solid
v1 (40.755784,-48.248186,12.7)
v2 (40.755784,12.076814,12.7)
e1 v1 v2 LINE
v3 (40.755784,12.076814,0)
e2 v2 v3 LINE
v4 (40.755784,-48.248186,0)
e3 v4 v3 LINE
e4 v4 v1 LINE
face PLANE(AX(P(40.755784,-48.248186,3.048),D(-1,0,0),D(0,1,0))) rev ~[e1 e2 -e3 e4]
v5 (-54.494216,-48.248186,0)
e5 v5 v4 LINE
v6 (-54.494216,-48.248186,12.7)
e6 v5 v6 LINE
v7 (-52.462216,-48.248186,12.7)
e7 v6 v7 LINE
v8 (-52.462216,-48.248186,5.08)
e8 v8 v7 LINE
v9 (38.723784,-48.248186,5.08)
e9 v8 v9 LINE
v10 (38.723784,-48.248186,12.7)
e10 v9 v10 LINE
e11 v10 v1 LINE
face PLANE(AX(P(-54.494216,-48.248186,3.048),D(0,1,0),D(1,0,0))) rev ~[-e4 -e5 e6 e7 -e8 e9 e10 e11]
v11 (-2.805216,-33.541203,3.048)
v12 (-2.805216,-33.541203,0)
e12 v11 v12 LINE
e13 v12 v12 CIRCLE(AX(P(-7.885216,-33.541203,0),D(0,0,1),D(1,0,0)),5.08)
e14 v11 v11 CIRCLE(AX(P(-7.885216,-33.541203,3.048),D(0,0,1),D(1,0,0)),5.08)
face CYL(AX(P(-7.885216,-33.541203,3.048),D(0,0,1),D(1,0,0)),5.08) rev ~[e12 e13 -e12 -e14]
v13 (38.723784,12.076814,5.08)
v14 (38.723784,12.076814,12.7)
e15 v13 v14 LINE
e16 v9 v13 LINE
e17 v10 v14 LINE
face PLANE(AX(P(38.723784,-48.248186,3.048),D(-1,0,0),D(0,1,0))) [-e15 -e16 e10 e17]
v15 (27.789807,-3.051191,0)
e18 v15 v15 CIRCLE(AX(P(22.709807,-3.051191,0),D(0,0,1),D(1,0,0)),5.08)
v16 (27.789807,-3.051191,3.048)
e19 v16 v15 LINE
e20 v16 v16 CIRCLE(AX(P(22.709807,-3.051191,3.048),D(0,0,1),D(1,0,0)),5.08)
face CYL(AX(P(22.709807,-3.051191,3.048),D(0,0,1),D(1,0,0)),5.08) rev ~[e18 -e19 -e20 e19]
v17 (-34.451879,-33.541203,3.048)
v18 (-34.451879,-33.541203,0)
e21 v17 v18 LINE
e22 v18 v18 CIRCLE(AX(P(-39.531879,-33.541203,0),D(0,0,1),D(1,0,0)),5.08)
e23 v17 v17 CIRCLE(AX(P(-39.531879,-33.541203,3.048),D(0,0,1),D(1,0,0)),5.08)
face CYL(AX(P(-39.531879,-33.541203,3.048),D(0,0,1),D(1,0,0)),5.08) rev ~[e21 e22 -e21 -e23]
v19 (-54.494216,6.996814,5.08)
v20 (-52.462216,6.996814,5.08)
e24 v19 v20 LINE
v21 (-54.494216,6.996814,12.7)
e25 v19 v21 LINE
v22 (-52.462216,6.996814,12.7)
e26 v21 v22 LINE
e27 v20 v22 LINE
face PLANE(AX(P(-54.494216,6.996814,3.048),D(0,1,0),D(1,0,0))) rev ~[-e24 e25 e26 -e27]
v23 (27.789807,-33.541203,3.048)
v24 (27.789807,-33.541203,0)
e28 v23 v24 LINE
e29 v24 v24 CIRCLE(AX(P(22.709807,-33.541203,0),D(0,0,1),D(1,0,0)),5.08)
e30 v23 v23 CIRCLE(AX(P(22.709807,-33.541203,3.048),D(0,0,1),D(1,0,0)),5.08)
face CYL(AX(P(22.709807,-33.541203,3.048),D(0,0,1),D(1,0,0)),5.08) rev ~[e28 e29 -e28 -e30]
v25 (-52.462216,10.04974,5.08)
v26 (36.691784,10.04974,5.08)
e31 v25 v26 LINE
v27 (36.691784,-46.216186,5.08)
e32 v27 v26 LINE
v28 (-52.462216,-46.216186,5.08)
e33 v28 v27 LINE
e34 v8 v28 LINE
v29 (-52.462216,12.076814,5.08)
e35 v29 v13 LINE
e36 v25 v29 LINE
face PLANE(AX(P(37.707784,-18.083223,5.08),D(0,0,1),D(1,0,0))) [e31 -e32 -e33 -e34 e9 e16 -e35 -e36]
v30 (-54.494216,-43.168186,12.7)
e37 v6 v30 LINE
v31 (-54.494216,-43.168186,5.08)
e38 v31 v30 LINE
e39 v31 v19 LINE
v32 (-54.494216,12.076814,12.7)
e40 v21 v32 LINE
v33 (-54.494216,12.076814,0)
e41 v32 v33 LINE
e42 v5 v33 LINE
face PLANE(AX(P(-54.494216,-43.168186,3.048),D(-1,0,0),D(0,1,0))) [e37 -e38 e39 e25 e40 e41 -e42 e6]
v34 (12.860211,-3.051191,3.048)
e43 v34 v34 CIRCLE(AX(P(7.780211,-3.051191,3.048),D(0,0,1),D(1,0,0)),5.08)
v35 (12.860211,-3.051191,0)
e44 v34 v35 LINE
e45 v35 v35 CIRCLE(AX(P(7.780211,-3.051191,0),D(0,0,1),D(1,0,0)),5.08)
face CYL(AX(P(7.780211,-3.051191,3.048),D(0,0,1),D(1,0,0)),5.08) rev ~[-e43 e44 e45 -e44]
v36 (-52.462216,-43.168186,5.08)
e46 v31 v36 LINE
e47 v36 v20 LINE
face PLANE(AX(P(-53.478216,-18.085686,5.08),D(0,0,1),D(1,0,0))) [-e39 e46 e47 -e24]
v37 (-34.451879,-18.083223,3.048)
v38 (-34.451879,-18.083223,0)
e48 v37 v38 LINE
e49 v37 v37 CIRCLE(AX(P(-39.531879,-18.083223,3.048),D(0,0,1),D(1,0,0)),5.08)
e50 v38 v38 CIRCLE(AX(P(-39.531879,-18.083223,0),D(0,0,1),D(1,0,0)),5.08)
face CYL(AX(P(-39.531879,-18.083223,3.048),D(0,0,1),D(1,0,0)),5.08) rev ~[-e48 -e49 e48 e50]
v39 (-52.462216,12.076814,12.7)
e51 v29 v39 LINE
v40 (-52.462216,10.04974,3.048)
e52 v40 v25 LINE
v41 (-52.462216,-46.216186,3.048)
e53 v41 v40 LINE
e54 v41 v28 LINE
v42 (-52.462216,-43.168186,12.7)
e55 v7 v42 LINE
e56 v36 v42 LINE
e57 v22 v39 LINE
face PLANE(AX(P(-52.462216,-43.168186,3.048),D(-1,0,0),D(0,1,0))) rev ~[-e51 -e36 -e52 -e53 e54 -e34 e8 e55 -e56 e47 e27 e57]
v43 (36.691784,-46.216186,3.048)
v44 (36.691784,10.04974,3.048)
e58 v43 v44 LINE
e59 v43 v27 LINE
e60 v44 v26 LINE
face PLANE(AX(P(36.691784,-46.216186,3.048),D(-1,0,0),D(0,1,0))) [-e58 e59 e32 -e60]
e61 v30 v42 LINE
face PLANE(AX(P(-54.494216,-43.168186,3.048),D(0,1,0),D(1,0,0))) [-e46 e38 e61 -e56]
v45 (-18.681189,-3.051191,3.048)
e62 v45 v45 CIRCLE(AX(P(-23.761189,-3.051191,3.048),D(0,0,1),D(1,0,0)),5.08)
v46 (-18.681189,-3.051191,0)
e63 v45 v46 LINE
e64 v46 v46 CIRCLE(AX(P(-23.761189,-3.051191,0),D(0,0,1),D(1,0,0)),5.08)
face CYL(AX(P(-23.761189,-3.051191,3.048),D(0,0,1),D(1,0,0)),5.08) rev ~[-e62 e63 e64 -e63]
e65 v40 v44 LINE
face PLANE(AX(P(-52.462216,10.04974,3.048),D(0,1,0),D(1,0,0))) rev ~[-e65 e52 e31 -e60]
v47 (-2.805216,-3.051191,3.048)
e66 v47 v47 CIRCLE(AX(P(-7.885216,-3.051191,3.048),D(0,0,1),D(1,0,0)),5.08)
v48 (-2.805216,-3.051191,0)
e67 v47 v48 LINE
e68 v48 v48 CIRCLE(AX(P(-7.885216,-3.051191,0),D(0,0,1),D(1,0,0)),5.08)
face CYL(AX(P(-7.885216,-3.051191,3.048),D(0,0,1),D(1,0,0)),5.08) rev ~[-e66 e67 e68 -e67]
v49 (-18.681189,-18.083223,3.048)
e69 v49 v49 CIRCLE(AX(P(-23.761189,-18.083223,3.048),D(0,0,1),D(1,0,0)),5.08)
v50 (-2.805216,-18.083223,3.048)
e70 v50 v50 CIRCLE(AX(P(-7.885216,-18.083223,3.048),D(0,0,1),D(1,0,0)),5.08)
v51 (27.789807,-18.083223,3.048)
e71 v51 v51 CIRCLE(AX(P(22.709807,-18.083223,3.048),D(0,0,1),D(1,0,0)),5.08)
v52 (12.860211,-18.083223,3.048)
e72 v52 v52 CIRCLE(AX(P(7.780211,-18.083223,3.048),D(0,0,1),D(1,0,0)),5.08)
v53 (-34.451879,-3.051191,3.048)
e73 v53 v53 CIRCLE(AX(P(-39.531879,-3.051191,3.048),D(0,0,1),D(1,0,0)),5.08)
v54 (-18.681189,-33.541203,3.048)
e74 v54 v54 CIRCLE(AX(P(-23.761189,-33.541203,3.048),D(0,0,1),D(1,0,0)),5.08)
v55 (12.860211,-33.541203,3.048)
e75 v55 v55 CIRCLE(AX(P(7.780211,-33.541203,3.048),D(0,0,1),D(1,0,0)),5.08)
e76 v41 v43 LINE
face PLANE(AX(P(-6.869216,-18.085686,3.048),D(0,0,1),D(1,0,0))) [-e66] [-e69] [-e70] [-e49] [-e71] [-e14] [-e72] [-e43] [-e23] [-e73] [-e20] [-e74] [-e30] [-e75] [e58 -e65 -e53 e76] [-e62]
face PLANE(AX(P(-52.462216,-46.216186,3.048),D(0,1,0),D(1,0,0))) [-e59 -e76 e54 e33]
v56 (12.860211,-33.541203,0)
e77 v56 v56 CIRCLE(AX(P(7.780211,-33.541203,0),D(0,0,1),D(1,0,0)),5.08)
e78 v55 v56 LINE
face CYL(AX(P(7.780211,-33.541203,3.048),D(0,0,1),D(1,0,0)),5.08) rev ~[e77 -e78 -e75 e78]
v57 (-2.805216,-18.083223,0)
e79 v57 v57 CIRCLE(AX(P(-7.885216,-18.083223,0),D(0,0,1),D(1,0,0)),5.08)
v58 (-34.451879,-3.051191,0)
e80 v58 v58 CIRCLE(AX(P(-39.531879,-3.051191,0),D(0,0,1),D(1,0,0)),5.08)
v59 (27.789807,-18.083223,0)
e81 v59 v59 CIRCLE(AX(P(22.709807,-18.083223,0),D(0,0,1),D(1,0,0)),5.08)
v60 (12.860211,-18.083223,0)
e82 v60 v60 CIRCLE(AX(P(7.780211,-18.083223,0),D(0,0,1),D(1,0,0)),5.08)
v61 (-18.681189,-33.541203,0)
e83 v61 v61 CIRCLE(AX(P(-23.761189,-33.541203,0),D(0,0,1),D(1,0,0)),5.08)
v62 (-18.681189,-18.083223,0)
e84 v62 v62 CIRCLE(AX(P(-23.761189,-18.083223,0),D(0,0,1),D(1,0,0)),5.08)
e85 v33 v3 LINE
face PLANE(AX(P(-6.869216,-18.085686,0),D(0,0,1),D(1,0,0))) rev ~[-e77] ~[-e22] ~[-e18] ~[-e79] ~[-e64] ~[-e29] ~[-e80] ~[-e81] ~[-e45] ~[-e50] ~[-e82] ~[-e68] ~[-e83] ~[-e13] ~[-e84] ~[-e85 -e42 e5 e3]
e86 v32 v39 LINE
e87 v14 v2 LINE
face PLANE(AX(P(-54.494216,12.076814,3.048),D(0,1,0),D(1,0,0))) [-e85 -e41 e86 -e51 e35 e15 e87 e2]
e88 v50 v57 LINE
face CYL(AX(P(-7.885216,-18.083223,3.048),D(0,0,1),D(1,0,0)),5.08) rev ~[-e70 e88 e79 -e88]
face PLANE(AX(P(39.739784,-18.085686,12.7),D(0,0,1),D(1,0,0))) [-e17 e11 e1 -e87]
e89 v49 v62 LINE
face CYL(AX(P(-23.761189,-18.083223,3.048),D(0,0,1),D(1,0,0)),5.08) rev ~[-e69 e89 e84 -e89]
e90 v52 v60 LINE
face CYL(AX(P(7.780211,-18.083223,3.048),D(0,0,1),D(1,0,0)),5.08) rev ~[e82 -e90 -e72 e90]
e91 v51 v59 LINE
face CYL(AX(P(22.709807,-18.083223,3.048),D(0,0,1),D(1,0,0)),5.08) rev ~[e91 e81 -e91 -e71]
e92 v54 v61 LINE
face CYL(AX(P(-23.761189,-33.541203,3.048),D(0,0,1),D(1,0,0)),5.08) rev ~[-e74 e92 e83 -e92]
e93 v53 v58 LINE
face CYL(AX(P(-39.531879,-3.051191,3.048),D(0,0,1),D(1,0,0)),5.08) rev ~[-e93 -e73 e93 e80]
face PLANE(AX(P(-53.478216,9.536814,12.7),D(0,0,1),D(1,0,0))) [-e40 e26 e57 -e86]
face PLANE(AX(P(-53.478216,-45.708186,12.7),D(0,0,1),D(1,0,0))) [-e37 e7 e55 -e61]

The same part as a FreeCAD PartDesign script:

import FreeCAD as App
import Part
import Sketcher

V = App.Vector
Q = App.Units.Quantity


def add_polygon(sketch, points):
    """Adds a closed chain of lines whose ends are joined by coincident constraints."""
    first, n = sketch.GeometryCount, len(points)
    for a, b in zip(points, points[1:] + points[:1]):
        sketch.addGeometry(Part.LineSegment(App.Vector(*a, 0), App.Vector(*b, 0)), False)
    for i in range(n):
        sketch.addConstraint(Sketcher.Constraint("Coincident", first + i, 2, first + (i + 1) % n, 1))

doc = App.newDocument("Part")
params = doc.addObject("Spreadsheet::Sheet", "Params")
for row, (alias, value) in enumerate([
    ("sketch1_width", "3.75 in"),
    ("sketch1_height", "2.375 in"),
    ("pad1_length", "0.12 in"),
    ("sketch2_width", "0.08 in"),
    ("sketch2_height", "2.375 in"),
    ("pad2_length", "0.38 in"),
    ("sketch3_height", "0.2 in"),
    ("sketch3_width", "0.08 in"),
    ("pad3_length", "0.38 in"),
    ("sketch4_height", "0.2 in"),
    ("sketch4_width", "0.08 in"),
    ("pad4_length", "0.38 in"),
    ("sketch5_width", "3.59 in"),
    ("sketch5_height", "0.08 in"),
    ("pad5_length", "0.08 in"),
    ("sketch6_width", "0.08 in"),
    ("sketch6_height", "1.975 in"),
    ("pad6_length", "0.08 in"),
    ("sketch7_width", "0.08 in"),
    ("pad7_length", "0.08 in"),
    ("sketch8_diameter", "0.4 in"),
    ("pocket1_length", "1 in"),
], start=1):
    params.set(f"A{row}", alias)
    params.set(f"B{row}", "=" + value)
    params.setAlias(f"B{row}", alias)

body = doc.addObject("PartDesign::Body", "Body")

sketch1 = body.newObject("Sketcher::SketchObject", "Sketch")
sketch1.AttachmentSupport = (doc.getObject("XY_Plane"), [""])
sketch1.MapMode = "FlatFace"
add_polygon(sketch1, [(-54, 12), (-54, -48), (41, -48), (41, 12)])
sketch1.addConstraint([
    Sketcher.Constraint("Vertical", 0),
    Sketcher.Constraint("Horizontal", 1),
    Sketcher.Constraint("Vertical", 2),
    Sketcher.Constraint("Horizontal", 3),
    Sketcher.Constraint("DistanceX", 1, 1, 1, 2, Q("3.75 in")),
    Sketcher.Constraint("DistanceY", 0, 2, 0, 1, Q("2.375 in")),
    Sketcher.Constraint("DistanceX", 0, 2, -1, 1, Q("54.494216 mm")),
    Sketcher.Constraint("DistanceY", 0, 2, -1, 1, Q("48.248186 mm")),
])
sketch1.setExpression("Constraints[8]", "Params.sketch1_width")
sketch1.setExpression("Constraints[9]", "Params.sketch1_height")
pad1 = body.newObject("PartDesign::Pad", "Pad")
pad1.Profile = sketch1
pad1.setExpression("Length", "Params.pad1_length")

sketch2 = body.newObject("Sketcher::SketchObject", "Sketch001")
sketch2.AttachmentSupport = (doc.getObject("XY_Plane"), [""])
sketch2.MapMode = "FlatFace"
sketch2.AttachmentOffset = App.Placement(V(0, 0, 0.12 * 25.4), App.Rotation())
add_polygon(sketch2, [(38.7, 12.1), (38.7, -48.2), (40.8, -48.2), (40.8, 12.1)])
sketch2.addConstraint([
    Sketcher.Constraint("Vertical", 0),
    Sketcher.Constraint("Horizontal", 1),
    Sketcher.Constraint("Vertical", 2),
    Sketcher.Constraint("Horizontal", 3),
    Sketcher.Constraint("DistanceX", 1, 1, 1, 2, Q("0.08 in")),
    Sketcher.Constraint("DistanceY", 0, 2, 0, 1, Q("2.375 in")),
    Sketcher.Constraint("DistanceX", -1, 1, 0, 2, Q("38.723784 mm")),
    Sketcher.Constraint("DistanceY", 0, 2, -1, 1, Q("48.248186 mm")),
])
sketch2.setExpression("Constraints[8]", "Params.sketch2_width")
sketch2.setExpression("Constraints[9]", "Params.sketch2_height")
pad2 = body.newObject("PartDesign::Pad", "Pad001")
pad2.Profile = sketch2
pad2.setExpression("Length", "Params.pad2_length")

sketch3 = body.newObject("Sketcher::SketchObject", "Sketch002")
sketch3.AttachmentSupport = (doc.getObject("XY_Plane"), [""])
sketch3.MapMode = "FlatFace"
sketch3.AttachmentOffset = App.Placement(V(0, 0, 0.12 * 25.4), App.Rotation())
add_polygon(sketch3, [(-54.5, -43.2), (-54.5, -48.2), (-52.5, -48.2), (-52.5, -43.2)])
sketch3.addConstraint([
    Sketcher.Constraint("Vertical", 0),
    Sketcher.Constraint("Horizontal", 1),
    Sketcher.Constraint("Vertical", 2),
    Sketcher.Constraint("Horizontal", 3),
    Sketcher.Constraint("DistanceY", 0, 2, 0, 1, Q("0.2 in")),
    Sketcher.Constraint("DistanceX", 1, 1, 1, 2, Q("0.08 in")),
    Sketcher.Constraint("DistanceX", 0, 2, -1, 1, Q("54.494216 mm")),
    Sketcher.Constraint("DistanceY", 0, 2, -1, 1, Q("48.248186 mm")),
])
sketch3.setExpression("Constraints[8]", "Params.sketch3_height")
sketch3.setExpression("Constraints[9]", "Params.sketch3_width")
pad3 = body.newObject("PartDesign::Pad", "Pad002")
pad3.Profile = sketch3
pad3.setExpression("Length", "Params.pad3_length")

sketch4 = body.newObject("Sketcher::SketchObject", "Sketch003")
sketch4.AttachmentSupport = (doc.getObject("XY_Plane"), [""])
sketch4.MapMode = "FlatFace"
sketch4.AttachmentOffset = App.Placement(V(0, 0, 0.12 * 25.4), App.Rotation())
add_polygon(sketch4, [(-54.5, 12.1), (-54.5, 7), (-52.5, 7), (-52.5, 12.1)])
sketch4.addConstraint([
    Sketcher.Constraint("Vertical", 0),
    Sketcher.Constraint("Horizontal", 1),
    Sketcher.Constraint("Vertical", 2),
    Sketcher.Constraint("Horizontal", 3),
    Sketcher.Constraint("DistanceY", 0, 2, 0, 1, Q("0.2 in")),
    Sketcher.Constraint("DistanceX", 1, 1, 1, 2, Q("0.08 in")),
    Sketcher.Constraint("DistanceX", 0, 2, -1, 1, Q("54.494216 mm")),
    Sketcher.Constraint("DistanceY", -1, 1, 0, 2, Q("6.996814 mm")),
])
sketch4.setExpression("Constraints[8]", "Params.sketch4_height")
sketch4.setExpression("Constraints[9]", "Params.sketch4_width")
pad4 = body.newObject("PartDesign::Pad", "Pad003")
pad4.Profile = sketch4
pad4.setExpression("Length", "Params.pad4_length")

sketch5 = body.newObject("Sketcher::SketchObject", "Sketch004")
sketch5.AttachmentSupport = (doc.getObject("XY_Plane"), [""])
sketch5.MapMode = "FlatFace"
sketch5.AttachmentOffset = App.Placement(V(0, 0, 0.12 * 25.4), App.Rotation())
add_polygon(sketch5, [(-52.5, 12.1), (-52.5, 10), (38.7, 10), (38.7, 12.1)])
add_polygon(sketch5, [(-52.5, -46.2), (-52.5, -48.2), (38.7, -48.2), (38.7, -46.2)])
sketch5.addConstraint([
    Sketcher.Constraint("Vertical", 0),
    Sketcher.Constraint("Horizontal", 1),
    Sketcher.Constraint("Vertical", 2),
    Sketcher.Constraint("Horizontal", 3),
    Sketcher.Constraint("Vertical", 4),
    Sketcher.Constraint("Horizontal", 5),
    Sketcher.Constraint("Vertical", 6),
    Sketcher.Constraint("Horizontal", 7),
    Sketcher.Constraint("Vertical", 3, 2, 4, 2),
    Sketcher.Constraint("Vertical", 2, 2, 5, 2),
    Sketcher.Constraint("DistanceX", 1, 1, 1, 2, Q("3.59 in")),
    Sketcher.Constraint("DistanceY", 4, 2, 4, 1, Q("0.08 in")),
    Sketcher.Constraint("DistanceY", 4, 2, 3, 2, Q("2.375 in")),
    Sketcher.Constraint("DistanceY", 0, 2, 0, 1, Q("2.027074 mm")),
    Sketcher.Constraint("DistanceY", -1, 1, 0, 2, Q("10.04974 mm")),
    Sketcher.Constraint("DistanceX", 0, 2, -1, 1, Q("52.462216 mm")),
])
sketch5.setExpression("Constraints[18]", "Params.sketch5_width")
sketch5.setExpression("Constraints[19]", "Params.sketch5_height")
pad5 = body.newObject("PartDesign::Pad", "Pad004")
pad5.Profile = sketch5
pad5.setExpression("Length", "Params.pad5_length")

sketch6 = body.newObject("Sketcher::SketchObject", "Sketch005")
sketch6.AttachmentSupport = (doc.getObject("XY_Plane"), [""])
sketch6.MapMode = "FlatFace"
sketch6.AttachmentOffset = App.Placement(V(0, 0, 0.12 * 25.4), App.Rotation())
add_polygon(sketch6, [(-54.5, 7), (-54.5, -43.2), (-52.5, -43.2), (-52.5, 7)])
sketch6.addConstraint([
    Sketcher.Constraint("Vertical", 0),
    Sketcher.Constraint("Horizontal", 1),
    Sketcher.Constraint("Vertical", 2),
    Sketcher.Constraint("Horizontal", 3),
    Sketcher.Constraint("DistanceX", 1, 1, 1, 2, Q("0.08 in")),
    Sketcher.Constraint("DistanceY", 0, 2, 0, 1, Q("1.975 in")),
    Sketcher.Constraint("DistanceX", 0, 2, -1, 1, Q("54.494216 mm")),
    Sketcher.Constraint("DistanceY", 0, 2, -1, 1, Q("43.168186 mm")),
])
sketch6.setExpression("Constraints[8]", "Params.sketch6_width")
sketch6.setExpression("Constraints[9]", "Params.sketch6_height")
pad6 = body.newObject("PartDesign::Pad", "Pad005")
pad6.Profile = sketch6
pad6.setExpression("Length", "Params.pad6_length")

sketch7 = body.newObject("Sketcher::SketchObject", "Sketch006")
sketch7.AttachmentSupport = (doc.getObject("XY_Plane"), [""])
sketch7.MapMode = "FlatFace"
sketch7.AttachmentOffset = App.Placement(V(0, 0, 0.12 * 25.4), App.Rotation())
add_polygon(sketch7, [(36.7, 10), (36.7, -46.2), (38.7, -46.2), (38.7, 10)])
sketch7.addConstraint([
    Sketcher.Constraint("Vertical", 0),
    Sketcher.Constraint("Horizontal", 1),
    Sketcher.Constraint("Vertical", 2),
    Sketcher.Constraint("Horizontal", 3),
    Sketcher.Constraint("DistanceX", 1, 1, 1, 2, Q("0.08 in")),
    Sketcher.Constraint("DistanceY", 0, 2, 0, 1, Q("56.265926 mm")),
    Sketcher.Constraint("DistanceY", -1, 1, 2, 2, Q("10.04974 mm")),
    Sketcher.Constraint("DistanceX", -1, 1, 0, 2, Q("36.691784 mm")),
])
sketch7.setExpression("Constraints[8]", "Params.sketch7_width")
pad7 = body.newObject("PartDesign::Pad", "Pad006")
pad7.Profile = sketch7
pad7.setExpression("Length", "Params.pad7_length")

sketch8 = body.newObject("Sketcher::SketchObject", "Sketch007")
sketch8.AttachmentSupport = (doc.getObject("XY_Plane"), [""])
sketch8.MapMode = "FlatFace"
sketch8.AttachmentOffset = App.Placement(V(0, 0, 0.12 * 25.4), App.Rotation())
sketch8.addGeometry([
    Part.Circle(V(-40, -3, 0), V(0, 0, 1), 5),
    Part.Circle(V(-24, -3, 0), V(0, 0, 1), 5),
    Part.Circle(V(-8, -3, 0), V(0, 0, 1), 5),
    Part.Circle(V(8, -3, 0), V(0, 0, 1), 5),
    Part.Circle(V(23, -3, 0), V(0, 0, 1), 5),
    Part.Circle(V(23, -18, 0), V(0, 0, 1), 5),
    Part.Circle(V(8, -18, 0), V(0, 0, 1), 5),
    Part.Circle(V(-8, -18, 0), V(0, 0, 1), 5),
    Part.Circle(V(-24, -18, 0), V(0, 0, 1), 5),
    Part.Circle(V(-40, -18, 0), V(0, 0, 1), 5),
    Part.Circle(V(-40, -34, 0), V(0, 0, 1), 5),
    Part.Circle(V(-24, -34, 0), V(0, 0, 1), 5),
    Part.Circle(V(-8, -34, 0), V(0, 0, 1), 5),
    Part.Circle(V(23, -34, 0), V(0, 0, 1), 5),
    Part.Circle(V(8, -34, 0), V(0, 0, 1), 5),
], False)
sketch8.addConstraint([
    Sketcher.Constraint("Equal", 0, 1),
    Sketcher.Constraint("Equal", 1, 2),
    Sketcher.Constraint("Equal", 2, 3),
    Sketcher.Constraint("Equal", 3, 4),
    Sketcher.Constraint("Equal", 4, 5),
    Sketcher.Constraint("Equal", 5, 6),
    Sketcher.Constraint("Equal", 6, 7),
    Sketcher.Constraint("Equal", 7, 8),
    Sketcher.Constraint("Equal", 8, 9),
    Sketcher.Constraint("Equal", 9, 10),
    Sketcher.Constraint("Equal", 10, 11),
    Sketcher.Constraint("Equal", 11, 12),
    Sketcher.Constraint("Equal", 12, 13),
    Sketcher.Constraint("Equal", 13, 14),
    Sketcher.Constraint("Horizontal", 0, 3, 1, 3),
    Sketcher.Constraint("Horizontal", 1, 3, 2, 3),
    Sketcher.Constraint("Horizontal", 2, 3, 3, 3),
    Sketcher.Constraint("Horizontal", 3, 3, 4, 3),
    Sketcher.Constraint("Horizontal", 5, 3, 6, 3),
    Sketcher.Constraint("Horizontal", 6, 3, 7, 3),
    Sketcher.Constraint("Horizontal", 7, 3, 8, 3),
    Sketcher.Constraint("Horizontal", 8, 3, 9, 3),
    Sketcher.Constraint("Horizontal", 10, 3, 11, 3),
    Sketcher.Constraint("Horizontal", 11, 3, 12, 3),
    Sketcher.Constraint("Horizontal", 12, 3, 13, 3),
    Sketcher.Constraint("Horizontal", 13, 3, 14, 3),
    Sketcher.Constraint("Vertical", 4, 3, 5, 3),
    Sketcher.Constraint("Vertical", 3, 3, 6, 3),
    Sketcher.Constraint("Vertical", 2, 3, 7, 3),
    Sketcher.Constraint("Vertical", 1, 3, 8, 3),
    Sketcher.Constraint("Vertical", 0, 3, 9, 3),
    Sketcher.Constraint("Vertical", 9, 3, 10, 3),
    Sketcher.Constraint("Vertical", 8, 3, 11, 3),
    Sketcher.Constraint("Vertical", 7, 3, 12, 3),
    Sketcher.Constraint("Vertical", 5, 3, 13, 3),
    Sketcher.Constraint("Vertical", 6, 3, 14, 3),
    Sketcher.Constraint("Diameter", 0, Q("0.4 in")),
    Sketcher.Constraint("DistanceX", 1, 3, 3, 3, Q("31.5414 mm")),
    Sketcher.Constraint("DistanceX", 0, 3, -1, 1, Q("39.531879 mm")),
    Sketcher.Constraint("DistanceY", 0, 3, -1, 1, Q("3.051191 mm")),
    Sketcher.Constraint("DistanceX", 1, 3, -1, 1, Q("23.761189 mm")),
    Sketcher.Constraint("DistanceY", 10, 3, 9, 3, Q("15.45798 mm")),
    Sketcher.Constraint("DistanceX", 2, 3, -1, 1, Q("7.885216 mm")),
    Sketcher.Constraint("DistanceX", -1, 1, 4, 3, Q("22.709807 mm")),
    Sketcher.Constraint("DistanceY", 5, 3, -1, 1, Q("18.083223 mm")),
])
sketch8.setExpression("Constraints[36]", "Params.sketch8_diameter")
pocket1 = body.newObject("PartDesign::Pocket", "Pocket")
pocket1.Profile = sketch8
pocket1.setExpression("Length", "Params.pocket1_length")

doc.recompute()
